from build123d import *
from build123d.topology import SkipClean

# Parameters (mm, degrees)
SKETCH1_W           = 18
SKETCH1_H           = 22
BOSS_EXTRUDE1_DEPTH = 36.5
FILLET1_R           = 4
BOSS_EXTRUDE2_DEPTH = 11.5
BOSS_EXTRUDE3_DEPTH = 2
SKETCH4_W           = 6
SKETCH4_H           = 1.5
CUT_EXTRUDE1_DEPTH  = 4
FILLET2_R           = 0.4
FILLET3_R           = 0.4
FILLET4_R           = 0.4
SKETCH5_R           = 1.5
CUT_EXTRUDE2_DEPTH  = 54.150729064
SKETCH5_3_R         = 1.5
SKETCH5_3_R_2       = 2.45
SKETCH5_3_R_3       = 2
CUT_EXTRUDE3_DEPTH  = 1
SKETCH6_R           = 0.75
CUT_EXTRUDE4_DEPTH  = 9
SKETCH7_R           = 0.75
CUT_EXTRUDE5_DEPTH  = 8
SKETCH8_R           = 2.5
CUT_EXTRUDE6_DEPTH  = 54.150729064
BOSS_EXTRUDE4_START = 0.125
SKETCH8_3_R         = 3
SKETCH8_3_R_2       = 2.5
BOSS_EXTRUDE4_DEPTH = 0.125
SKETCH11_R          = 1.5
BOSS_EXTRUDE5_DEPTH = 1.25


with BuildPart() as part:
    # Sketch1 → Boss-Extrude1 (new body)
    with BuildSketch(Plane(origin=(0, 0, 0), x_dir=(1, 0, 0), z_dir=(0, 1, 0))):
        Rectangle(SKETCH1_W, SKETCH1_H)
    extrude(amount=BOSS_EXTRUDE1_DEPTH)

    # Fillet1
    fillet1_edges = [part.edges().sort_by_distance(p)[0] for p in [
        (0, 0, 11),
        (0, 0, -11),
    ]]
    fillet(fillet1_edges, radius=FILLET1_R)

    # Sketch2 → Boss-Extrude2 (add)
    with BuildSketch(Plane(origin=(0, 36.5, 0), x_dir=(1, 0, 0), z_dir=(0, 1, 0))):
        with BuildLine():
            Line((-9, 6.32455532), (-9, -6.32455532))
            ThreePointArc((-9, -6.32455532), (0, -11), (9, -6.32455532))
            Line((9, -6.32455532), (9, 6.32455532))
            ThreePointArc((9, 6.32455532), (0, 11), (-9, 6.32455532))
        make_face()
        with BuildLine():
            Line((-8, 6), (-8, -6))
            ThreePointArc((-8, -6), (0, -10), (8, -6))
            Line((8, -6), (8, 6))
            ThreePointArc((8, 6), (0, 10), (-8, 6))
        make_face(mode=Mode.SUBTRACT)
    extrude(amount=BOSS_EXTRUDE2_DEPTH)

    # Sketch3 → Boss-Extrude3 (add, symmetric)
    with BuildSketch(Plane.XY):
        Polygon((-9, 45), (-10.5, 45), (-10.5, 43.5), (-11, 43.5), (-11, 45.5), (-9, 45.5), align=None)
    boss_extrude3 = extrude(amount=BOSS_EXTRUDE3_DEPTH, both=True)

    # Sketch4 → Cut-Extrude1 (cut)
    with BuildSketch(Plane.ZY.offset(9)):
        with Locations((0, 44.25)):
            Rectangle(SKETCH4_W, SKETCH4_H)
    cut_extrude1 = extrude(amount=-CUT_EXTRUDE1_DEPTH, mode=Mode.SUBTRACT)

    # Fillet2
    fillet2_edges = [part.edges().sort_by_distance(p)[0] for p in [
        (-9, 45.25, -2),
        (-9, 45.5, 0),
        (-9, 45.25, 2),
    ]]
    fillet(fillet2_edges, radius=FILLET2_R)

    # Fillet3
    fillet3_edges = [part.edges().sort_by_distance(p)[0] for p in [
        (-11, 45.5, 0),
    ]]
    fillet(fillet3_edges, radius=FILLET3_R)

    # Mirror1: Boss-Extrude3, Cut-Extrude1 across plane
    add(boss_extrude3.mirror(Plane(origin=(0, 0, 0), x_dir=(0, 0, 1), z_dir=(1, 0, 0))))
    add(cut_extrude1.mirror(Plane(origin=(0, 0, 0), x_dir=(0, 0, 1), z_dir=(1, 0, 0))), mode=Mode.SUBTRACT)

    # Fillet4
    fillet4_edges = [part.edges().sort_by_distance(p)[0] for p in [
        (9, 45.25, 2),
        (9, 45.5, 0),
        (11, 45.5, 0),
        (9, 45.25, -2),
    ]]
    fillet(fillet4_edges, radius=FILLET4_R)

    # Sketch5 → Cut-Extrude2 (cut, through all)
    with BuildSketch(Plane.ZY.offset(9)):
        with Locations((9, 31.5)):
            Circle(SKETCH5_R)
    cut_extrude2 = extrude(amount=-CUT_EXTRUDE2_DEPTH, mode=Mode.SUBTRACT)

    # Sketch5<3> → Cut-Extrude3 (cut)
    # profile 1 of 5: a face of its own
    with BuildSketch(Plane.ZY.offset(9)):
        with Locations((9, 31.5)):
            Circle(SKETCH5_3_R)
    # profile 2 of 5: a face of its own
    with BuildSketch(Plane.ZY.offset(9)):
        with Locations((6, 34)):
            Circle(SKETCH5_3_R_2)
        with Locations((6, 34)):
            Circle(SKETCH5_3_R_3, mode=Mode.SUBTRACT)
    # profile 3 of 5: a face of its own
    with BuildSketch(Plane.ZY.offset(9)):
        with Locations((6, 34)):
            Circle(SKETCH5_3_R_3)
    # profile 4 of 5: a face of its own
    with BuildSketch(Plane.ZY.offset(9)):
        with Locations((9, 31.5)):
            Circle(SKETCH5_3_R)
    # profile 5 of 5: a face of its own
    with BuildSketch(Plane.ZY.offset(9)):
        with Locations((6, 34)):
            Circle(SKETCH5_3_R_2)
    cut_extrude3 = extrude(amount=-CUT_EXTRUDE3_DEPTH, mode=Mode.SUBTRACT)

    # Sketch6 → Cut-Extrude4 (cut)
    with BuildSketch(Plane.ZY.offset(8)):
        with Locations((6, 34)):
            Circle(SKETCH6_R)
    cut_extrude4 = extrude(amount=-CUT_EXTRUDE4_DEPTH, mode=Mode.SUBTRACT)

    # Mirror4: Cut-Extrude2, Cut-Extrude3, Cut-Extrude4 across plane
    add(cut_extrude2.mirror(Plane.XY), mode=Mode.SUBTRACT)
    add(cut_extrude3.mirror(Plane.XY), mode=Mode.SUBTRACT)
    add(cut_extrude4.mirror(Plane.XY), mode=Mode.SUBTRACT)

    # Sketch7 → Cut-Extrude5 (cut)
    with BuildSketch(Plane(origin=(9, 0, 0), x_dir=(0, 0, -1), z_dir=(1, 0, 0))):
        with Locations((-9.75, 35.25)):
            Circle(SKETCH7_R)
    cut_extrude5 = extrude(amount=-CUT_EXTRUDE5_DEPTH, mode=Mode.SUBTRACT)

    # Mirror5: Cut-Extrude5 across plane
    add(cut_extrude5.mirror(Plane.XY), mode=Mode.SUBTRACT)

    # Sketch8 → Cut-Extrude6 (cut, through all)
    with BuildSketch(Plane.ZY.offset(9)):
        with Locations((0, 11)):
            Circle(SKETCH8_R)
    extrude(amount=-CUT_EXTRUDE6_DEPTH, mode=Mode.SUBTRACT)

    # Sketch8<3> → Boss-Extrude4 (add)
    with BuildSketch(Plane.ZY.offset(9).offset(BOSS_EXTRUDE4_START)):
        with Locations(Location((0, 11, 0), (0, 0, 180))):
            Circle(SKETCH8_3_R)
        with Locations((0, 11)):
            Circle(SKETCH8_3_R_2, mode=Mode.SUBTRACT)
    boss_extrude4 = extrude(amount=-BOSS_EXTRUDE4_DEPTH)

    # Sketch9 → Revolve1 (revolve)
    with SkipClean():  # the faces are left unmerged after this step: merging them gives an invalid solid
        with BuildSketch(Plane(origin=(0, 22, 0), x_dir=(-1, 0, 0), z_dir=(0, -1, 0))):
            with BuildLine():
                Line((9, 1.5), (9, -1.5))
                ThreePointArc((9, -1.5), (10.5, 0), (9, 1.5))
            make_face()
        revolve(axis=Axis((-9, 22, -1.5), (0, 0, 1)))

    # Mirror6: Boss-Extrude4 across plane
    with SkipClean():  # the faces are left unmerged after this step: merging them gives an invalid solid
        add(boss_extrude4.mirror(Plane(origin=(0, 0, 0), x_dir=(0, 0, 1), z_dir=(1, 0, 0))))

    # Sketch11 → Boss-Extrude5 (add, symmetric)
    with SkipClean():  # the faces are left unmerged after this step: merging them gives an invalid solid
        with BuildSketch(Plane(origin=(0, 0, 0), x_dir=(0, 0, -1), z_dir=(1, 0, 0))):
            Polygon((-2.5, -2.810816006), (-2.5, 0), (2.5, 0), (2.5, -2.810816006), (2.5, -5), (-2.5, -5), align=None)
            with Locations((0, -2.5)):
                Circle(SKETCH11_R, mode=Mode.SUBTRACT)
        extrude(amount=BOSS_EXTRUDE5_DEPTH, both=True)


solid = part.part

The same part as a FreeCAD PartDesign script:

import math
import FreeCAD as App
import Part
import Sketcher


def edges_at(feature, points):
    """Names of the edges that pass closest to the given points."""
    edges = feature.Shape.Edges
    near = lambda p: min(range(len(edges)), key=lambda i: edges[i].distToShape(Part.Vertex(*p))[0])
    return sorted({f"Edge{near(p) + 1}" for p in points})

doc = App.newDocument("Part")
body = doc.addObject("PartDesign::Body", "Body")

# Sketch on XZ plane
sketch1 = body.newObject("Sketcher::SketchObject", "Sketch")
sketch1.AttachmentSupport = (doc.getObject("XZ_Plane"), [""])
sketch1.MapMode = "FlatFace"
sketch1.addGeometry([
    Part.LineSegment(App.Vector(-9, -11, 0), App.Vector(-9, 11, 0)),
    Part.LineSegment(App.Vector(-9, 11, 0), App.Vector(9, 11, 0)),
    Part.LineSegment(App.Vector(9, 11, 0), App.Vector(9, -11, 0)),
    Part.LineSegment(App.Vector(9, -11, 0), App.Vector(-9, -11, 0)),
], False)
sketch1.addConstraint([
    Sketcher.Constraint("Coincident", 0, 2, 1, 1),
    Sketcher.Constraint("Coincident", 1, 2, 2, 1),
    Sketcher.Constraint("Coincident", 2, 2, 3, 1),
    Sketcher.Constraint("Coincident", 3, 2, 0, 1),
    Sketcher.Constraint("Vertical", 0),
    Sketcher.Constraint("Horizontal", 1),
    Sketcher.Constraint("Vertical", 2),
    Sketcher.Constraint("Horizontal", 3),
    Sketcher.Constraint("Symmetric", 0, 2, 2, 2, -1, 1),
    Sketcher.Constraint("DistanceX", 1, 1, 1, 2, 18.0),
    Sketcher.Constraint("DistanceY", 0, 1, 0, 2, 22.0),
])
pad1 = body.newObject("PartDesign::Pad", "Pad")
pad1.Profile = sketch1
pad1.Length = 36.5
pad1.Reversed = True
doc.recompute()

fillet = body.newObject("PartDesign::Fillet", "Fillet")
fillet.Base = (pad1, edges_at(pad1, [(0, 0, 11), (0, 0, -11)]))
fillet.Radius = 4

# Sketch on XZ plane
sketch2 = body.newObject("Sketcher::SketchObject", "Sketch001")
sketch2.AttachmentSupport = (doc.getObject("XZ_Plane"), [""])
sketch2.MapMode = "FlatFace"
sketch2.AttachmentOffset = App.Placement(App.Vector(0, 0, -36.5), App.Rotation())
sketch2.addGeometry([
    Part.LineSegment(App.Vector(-9, -6.324555, 0), App.Vector(-9, 6.324555, 0)),  # 0
    Part.ArcOfCircle(Part.Circle(App.Vector(0, 0, 0), App.Vector(0, 0, 1), 11), math.radians(35.096801), math.radians(144.903199)),  # 1
    Part.LineSegment(App.Vector(9, 6.324555, 0), App.Vector(9, -6.324555, 0)),  # 2
    Part.ArcOfCircle(Part.Circle(App.Vector(0, 0, 0), App.Vector(0, 0, 1), 11), math.radians(-144.903199), math.radians(-35.096801)),  # 3
    Part.LineSegment(App.Vector(-8, 6, 0), App.Vector(-8, -6, 0)),  # 4
    Part.ArcOfCircle(Part.Circle(App.Vector(0, 0, 0), App.Vector(0, 0, 1), 10), math.radians(-143.130102), math.radians(-36.869898)),  # 5
    Part.LineSegment(App.Vector(8, -6, 0), App.Vector(8, 6, 0)),  # 6
    Part.ArcOfCircle(Part.Circle(App.Vector(0, 0, 0), App.Vector(0, 0, 1), 10), math.radians(36.869898), math.radians(143.130102)),  # 7
], False)
sketch2.addConstraint([
    Sketcher.Constraint("Coincident", 0, 2, 1, 2),
    Sketcher.Constraint("Coincident", 1, 1, 2, 1),
    Sketcher.Constraint("Coincident", 2, 2, 3, 2),
    Sketcher.Constraint("Coincident", 3, 1, 0, 1),
    Sketcher.Constraint("Coincident", 4, 2, 5, 1),
    Sketcher.Constraint("Coincident", 5, 2, 6, 1),
    Sketcher.Constraint("Coincident", 6, 2, 7, 1),
    Sketcher.Constraint("Coincident", 7, 2, 4, 1),
    Sketcher.Constraint("Vertical", 0),
    Sketcher.Constraint("Vertical", 2),
    Sketcher.Constraint("Vertical", 4),
    Sketcher.Constraint("Vertical", 6),
    Sketcher.Constraint("Coincident", 1, 3, -1, 1),
    Sketcher.Constraint("Coincident", 3, 3, -1, 1),
    Sketcher.Constraint("Coincident", 5, 3, -1, 1),
    Sketcher.Constraint("Coincident", 7, 3, -1, 1),
    Sketcher.Constraint("Equal", 1, 3),
    Sketcher.Constraint("Equal", 5, 7),
    Sketcher.Constraint("Horizontal", 0, 2, 1, 1),
    Sketcher.Constraint("Horizontal", 4, 2, 5, 2),
    Sketcher.Constraint("Radius", 1, 11.0),
    Sketcher.Constraint("Radius", 5, 10.0),
    Sketcher.Constraint("DistanceY", 4, 2, 4, 1, 12.0),
    Sketcher.Constraint("DistanceX", 0, 2, -1, 1, 9.0),
])
pad2 = body.newObject("PartDesign::Pad", "Pad001")
pad2.Profile = sketch2
pad2.Length = 11.5
pad2.Reversed = True

# Sketch on XY plane
sketch3 = body.newObject("Sketcher::SketchObject", "Sketch002")
sketch3.AttachmentSupport = (doc.getObject("XY_Plane"), [""])
sketch3.MapMode = "FlatFace"
sketch3.addGeometry([
    Part.LineSegment(App.Vector(-10.5, 45, 0), App.Vector(-9, 45, 0)),  # 0
    Part.LineSegment(App.Vector(-9, 45, 0), App.Vector(-9, 45.5, 0)),  # 1
    Part.LineSegment(App.Vector(-9, 45.5, 0), App.Vector(-11, 45.5, 0)),  # 2
    Part.LineSegment(App.Vector(-11, 45.5, 0), App.Vector(-11, 43.5, 0)),  # 3
    Part.LineSegment(App.Vector(-11, 43.5, 0), App.Vector(-10.5, 43.5, 0)),  # 4
    Part.LineSegment(App.Vector(-10.5, 43.5, 0), App.Vector(-10.5, 45, 0)),  # 5
], False)
sketch3.addConstraint([
    Sketcher.Constraint("Coincident", 0, 2, 1, 1),
    Sketcher.Constraint("Coincident", 1, 2, 2, 1),
    Sketcher.Constraint("Coincident", 2, 2, 3, 1),
    Sketcher.Constraint("Coincident", 3, 2, 4, 1),
    Sketcher.Constraint("Coincident", 4, 2, 5, 1),
    Sketcher.Constraint("Coincident", 5, 2, 0, 1),
    Sketcher.Constraint("Horizontal", 0),
    Sketcher.Constraint("Vertical", 1),
    Sketcher.Constraint("Horizontal", 2),
    Sketcher.Constraint("Vertical", 3),
    Sketcher.Constraint("Horizontal", 4),
    Sketcher.Constraint("Vertical", 5),
    Sketcher.Constraint("Equal", 4, 1),
    Sketcher.Constraint("Equal", 2, 3),
    Sketcher.Constraint("DistanceX", 2, 2, 2, 1, 2.0),
    Sketcher.Constraint("DistanceX", 0, 1, 0, 2, 1.5),
    Sketcher.Constraint("DistanceX", 0, 2, -1, 1, 9.0),
    Sketcher.Constraint("DistanceY", -1, 1, 0, 2, 45.0),
])
pad3 = body.newObject("PartDesign::Pad", "Pad002")
pad3.Profile = sketch3
pad3.Length = 4
pad3.Midplane = True

# Sketch on YZ plane
sketch4 = body.newObject("Sketcher::SketchObject", "Sketch003")
sketch4.AttachmentSupport = (doc.getObject("YZ_Plane"), [""])
sketch4.MapMode = "FlatFace"
sketch4.AttachmentOffset = App.Placement(App.Vector(0, 0, -9), App.Rotation())
sketch4.addGeometry([
    Part.LineSegment(App.Vector(45, -3, 0), App.Vector(43.5, -3, 0)),
    Part.LineSegment(App.Vector(43.5, -3, 0), App.Vector(43.5, 3, 0)),
    Part.LineSegment(App.Vector(43.5, 3, 0), App.Vector(45, 3, 0)),
    Part.LineSegment(App.Vector(45, 3, 0), App.Vector(45, -3, 0)),
], False)
sketch4.addConstraint([
    Sketcher.Constraint("Coincident", 0, 2, 1, 1),
    Sketcher.Constraint("Coincident", 1, 2, 2, 1),
    Sketcher.Constraint("Coincident", 2, 2, 3, 1),
    Sketcher.Constraint("Coincident", 3, 2, 0, 1),
    Sketcher.Constraint("Horizontal", 0),
    Sketcher.Constraint("Vertical", 1),
    Sketcher.Constraint("Horizontal", 2),
    Sketcher.Constraint("Vertical", 3),
    Sketcher.Constraint("DistanceY", 1, 1, 1, 2, 6.0),
    Sketcher.Constraint("DistanceX", 0, 2, 0, 1, 1.5),
    Sketcher.Constraint("DistanceY", 0, 2, -1, 1, 3.0),
    Sketcher.Constraint("DistanceX", -1, 1, 2, 2, 45.0),
])
pocket1 = body.newObject("PartDesign::Pocket", "Pocket")
pocket1.Profile = sketch4
pocket1.Length = 4
pocket1.Reversed = True
doc.recompute()

fillet2 = body.newObject("PartDesign::Fillet", "Fillet001")
fillet2.Base = (pocket1, edges_at(pocket1, [(-9, 45.25, -2), (-9, 45.5, 0), (-9, 45.25, 2)]))
fillet2.Radius = 0.4
doc.recompute()

fillet3 = body.newObject("PartDesign::Fillet", "Fillet002")
fillet3.Base = (fillet2, edges_at(fillet2, [(-11, 45.5, 0)]))
fillet3.Radius = 0.4
doc.recompute()

mirrored = body.newObject("PartDesign::Mirrored", "Mirrored")
mirrored.Originals = [pad3, pocket1]
mirrored.MirrorPlane = (doc.getObject("YZ_Plane"), [""])
body.Tip = mirrored
doc.recompute()

fillet4 = body.newObject("PartDesign::Fillet", "Fillet003")
fillet4.Base = (mirrored, edges_at(mirrored, [
    (9, 45.25, 2),
    (9, 45.5, 0),
    (11, 45.5, 0),
    (9, 45.25, -2),
]))
fillet4.Radius = 0.4

# Sketch on YZ plane
sketch5 = body.newObject("Sketcher::SketchObject", "Sketch004")
sketch5.AttachmentSupport = (doc.getObject("YZ_Plane"), [""])
sketch5.MapMode = "FlatFace"
sketch5.AttachmentOffset = App.Placement(App.Vector(0, 0, -9), App.Rotation())
sketch5.addGeometry(Part.Circle(App.Vector(31.5, 9, 0), App.Vector(0, 0, 1), 1.5), False)
sketch5.addConstraint([
    Sketcher.Constraint("Diameter", 0, 3.0),
    Sketcher.Constraint("DistanceY", -1, 1, 0, 3, 9.0),
    Sketcher.Constraint("DistanceX", -1, 1, 0, 3, 31.5),
])
pocket2 = body.newObject("PartDesign::Pocket", "Pocket001")
pocket2.Profile = sketch5
pocket2.Type = "ThroughAll"
pocket2.Reversed = True

# Sketch on YZ plane
sketch6 = body.newObject("Sketcher::SketchObject", "Sketch005")
sketch6.AttachmentSupport = (doc.getObject("YZ_Plane"), [""])
sketch6.MapMode = "FlatFace"
sketch6.AttachmentOffset = App.Placement(App.Vector(0, 0, -9), App.Rotation())
sketch6.addGeometry([
    Part.ArcOfCircle(Part.Circle(App.Vector(31.5, 9, 0), App.Vector(0, 0, 1), 1.5), math.radians(-39.12722), math.radians(298.738362)),
    Part.ArcOfCircle(Part.Circle(App.Vector(34, 6, 0), App.Vector(0, 0, 1), 2.45), math.radians(136.554956), math.radians(483.056186)),
], False)
sketch6.addConstraint([
    Sketcher.Constraint("Coincident", 0, 1, 1, 2),
    Sketcher.Constraint("Coincident", 1, 1, 0, 2),
    Sketcher.Constraint("Radius", 0, 1.5),
    Sketcher.Constraint("Radius", 1, 2.45),
    Sketcher.Constraint("DistanceY", -1, 1, 0, 3, 9.0),
    Sketcher.Constraint("DistanceX", -1, 1, 1, 3, 34.0),
    Sketcher.Constraint("DistanceY", -1, 1, 1, 3, 6.0),
    Sketcher.Constraint("DistanceX", -1, 1, 0, 3, 31.5),
])
pocket3 = body.newObject("PartDesign::Pocket", "Pocket002")
pocket3.Profile = sketch6
pocket3.Length = 1
pocket3.Reversed = True

# Sketch on YZ plane
sketch7 = body.newObject("Sketcher::SketchObject", "Sketch006")
sketch7.AttachmentSupport = (doc.getObject("YZ_Plane"), [""])
sketch7.MapMode = "FlatFace"
sketch7.AttachmentOffset = App.Placement(App.Vector(0, 0, -8), App.Rotation())
sketch7.addGeometry(Part.Circle(App.Vector(34, 6, 0), App.Vector(0, 0, 1), 0.75), False)
sketch7.addConstraint([
    Sketcher.Constraint("Diameter", 0, 1.5),
    Sketcher.Constraint("DistanceX", -1, 1, 0, 3, 34.0),
    Sketcher.Constraint("DistanceY", -1, 1, 0, 3, 6.0),
])
pocket4 = body.newObject("PartDesign::Pocket", "Pocket003")
pocket4.Profile = sketch7
pocket4.Length = 9
pocket4.Reversed = True
doc.recompute()

mirrored2 = body.newObject("PartDesign::Mirrored", "Mirrored001")
mirrored2.Originals = [pocket2, pocket3, pocket4]
mirrored2.MirrorPlane = (doc.getObject("XY_Plane"), [""])
body.Tip = mirrored2

# Sketch on YZ plane
sketch8 = body.newObject("Sketcher::SketchObject", "Sketch007")
sketch8.AttachmentSupport = (doc.getObject("YZ_Plane"), [""])
sketch8.MapMode = "FlatFace"
sketch8.AttachmentOffset = App.Placement(App.Vector(0, 0, 9), App.Rotation())
sketch8.addGeometry(Part.Circle(App.Vector(35.25, 9.75, 0), App.Vector(0, 0, 1), 0.75), False)
sketch8.addConstraint([
    Sketcher.Constraint("Diameter", 0, 1.5),
    Sketcher.Constraint("DistanceX", -1, 1, 0, 3, 35.25),
    Sketcher.Constraint("DistanceY", -1, 1, 0, 3, 9.75),
])
pocket5 = body.newObject("PartDesign::Pocket", "Pocket004")
pocket5.Profile = sketch8
pocket5.Length = 8
doc.recompute()

mirrored3 = body.newObject("PartDesign::Mirrored", "Mirrored002")
mirrored3.Originals = [pocket5]
mirrored3.MirrorPlane = (doc.getObject("XY_Plane"), [""])
body.Tip = mirrored3

# Sketch on YZ plane
sketch9 = body.newObject("Sketcher::SketchObject", "Sketch008")
sketch9.AttachmentSupport = (doc.getObject("YZ_Plane"), [""])
sketch9.MapMode = "FlatFace"
sketch9.AttachmentOffset = App.Placement(App.Vector(0, 0, -9), App.Rotation())
sketch9.addGeometry(Part.Circle(App.Vector(11, 0, 0), App.Vector(0, 0, 1), 2.5), False)
sketch9.addConstraint([
    Sketcher.Constraint("PointOnObject", 0, 3, -1),
    Sketcher.Constraint("Diameter", 0, 5.0),
    Sketcher.Constraint("DistanceX", -1, 1, 0, 3, 11.0),
])
pocket6 = body.newObject("PartDesign::Pocket", "Pocket005")
pocket6.Profile = sketch9
pocket6.Type = "ThroughAll"
pocket6.Reversed = True

# Sketch on YZ plane
sketch10 = body.newObject("Sketcher::SketchObject", "Sketch009")
sketch10.AttachmentSupport = (doc.getObject("YZ_Plane"), [""])
sketch10.MapMode = "FlatFace"
sketch10.AttachmentOffset = App.Placement(App.Vector(0, 0, -9.125), App.Rotation())
sketch10.addGeometry([
    Part.Circle(App.Vector(11, 0, 0), App.Vector(0, 0, 1), 3),
    Part.Circle(App.Vector(11, 0, 0), App.Vector(0, 0, 1), 2.5),
], False)
sketch10.addConstraint([
    Sketcher.Constraint("Coincident", 1, 3, 0, 3),
    Sketcher.Constraint("PointOnObject", 0, 3, -1),
    Sketcher.Constraint("Diameter", 0, 6.0),
    Sketcher.Constraint("Diameter", 1, 5.0),
    Sketcher.Constraint("DistanceX", -1, 1, 0, 3, 11.0),
])
pad4 = body.newObject("PartDesign::Pad", "Pad003")
pad4.Profile = sketch10
pad4.Length = 0.125

# Sketch on XZ plane
sketch11 = body.newObject("Sketcher::SketchObject", "Sketch010")
sketch11.AttachmentSupport = (doc.getObject("XZ_Plane"), [""])
sketch11.MapMode = "FlatFace"
sketch11.AttachmentOffset = App.Placement(App.Vector(0, 0, -22), App.Rotation())
sketch11.addGeometry([
    Part.LineSegment(App.Vector(-9, -1.5, 0), App.Vector(-9, 1.5, 0)),
    Part.ArcOfCircle(Part.Circle(App.Vector(-9, 0, 0), App.Vector(0, 0, 1), 1.5), math.radians(90), math.radians(270)),
], False)
sketch11.addGeometry(Part.LineSegment(App.Vector(-9, -1.5, 0), App.Vector(-9, 1.5, 0)), True)  # axis
sketch11.addConstraint([
    Sketcher.Constraint("Coincident", 0, 1, 1, 2),
    Sketcher.Constraint("Coincident", 1, 1, 0, 2),
    Sketcher.Constraint("Vertical", 0),
    Sketcher.Constraint("Vertical", 2),
    Sketcher.Constraint("Coincident", 2, 1, 0, 1),
    Sketcher.Constraint("PointOnObject", 1, 3, -1),
    Sketcher.Constraint("Vertical", 1, 3, 0, 1),
    Sketcher.Constraint("Equal", 0, 2),
    Sketcher.Constraint("Radius", 1, 1.5),
    Sketcher.Constraint("DistanceX", 1, 3, -1, 1, 9.0),
])
revolution = body.newObject("PartDesign::Revolution", "Revolution")
revolution.Profile = sketch11
revolution.ReferenceAxis = (sketch11, ["Axis0"])
revolution.Angle = 360
doc.recompute()

mirrored4 = body.newObject("PartDesign::Mirrored", "Mirrored003")
mirrored4.Originals = [pad4]
mirrored4.MirrorPlane = (doc.getObject("YZ_Plane"), [""])
body.Tip = mirrored4

# Sketch on YZ plane
sketch12 = body.newObject("Sketcher::SketchObject", "Sketch011")
sketch12.AttachmentSupport = (doc.getObject("YZ_Plane"), [""])
sketch12.MapMode = "FlatFace"
sketch12.addGeometry([
    Part.LineSegment(App.Vector(0, 2.5, 0), App.Vector(-5, 2.5, 0)),  # 0
    Part.LineSegment(App.Vector(-5, 2.5, 0), App.Vector(-5, -2.5, 0)),  # 1
    Part.LineSegment(App.Vector(-5, -2.5, 0), App.Vector(0, -2.5, 0)),  # 2
    Part.LineSegment(App.Vector(0, -2.5, 0), App.Vector(0, 2.5, 0)),  # 3
    Part.Circle(App.Vector(-2.5, 0, 0), App.Vector(0, 0, 1), 1.5),  # 4
], False)
sketch12.addConstraint([
    Sketcher.Constraint("Coincident", 0, 2, 1, 1),
    Sketcher.Constraint("Coincident", 1, 2, 2, 1),
    Sketcher.Constraint("Coincident", 2, 2, 3, 1),
    Sketcher.Constraint("Coincident", 3, 2, 0, 1),
    Sketcher.Constraint("Horizontal", 0),
    Sketcher.Constraint("Vertical", 1),
    Sketcher.Constraint("Horizontal", 2),
    Sketcher.Constraint("Vertical", 3),
    Sketcher.Constraint("Symmetric", 2, 2, 3, 2, -1, 1),
    Sketcher.Constraint("PointOnObject", 4, 3, -1),
    Sketcher.Constraint("Equal", 2, 1),
    Sketcher.Constraint("Diameter", 4, 3.0),
    Sketcher.Constraint("DistanceX", 0, 2, 0, 1, 5.0),
    Sketcher.Constraint("DistanceX", 4, 3, -1, 1, 2.5),
])
pad5 = body.newObject("PartDesign::Pad", "Pad004")
pad5.Profile = sketch12
pad5.Length = 2.5
pad5.Midplane = True

doc.recompute()
